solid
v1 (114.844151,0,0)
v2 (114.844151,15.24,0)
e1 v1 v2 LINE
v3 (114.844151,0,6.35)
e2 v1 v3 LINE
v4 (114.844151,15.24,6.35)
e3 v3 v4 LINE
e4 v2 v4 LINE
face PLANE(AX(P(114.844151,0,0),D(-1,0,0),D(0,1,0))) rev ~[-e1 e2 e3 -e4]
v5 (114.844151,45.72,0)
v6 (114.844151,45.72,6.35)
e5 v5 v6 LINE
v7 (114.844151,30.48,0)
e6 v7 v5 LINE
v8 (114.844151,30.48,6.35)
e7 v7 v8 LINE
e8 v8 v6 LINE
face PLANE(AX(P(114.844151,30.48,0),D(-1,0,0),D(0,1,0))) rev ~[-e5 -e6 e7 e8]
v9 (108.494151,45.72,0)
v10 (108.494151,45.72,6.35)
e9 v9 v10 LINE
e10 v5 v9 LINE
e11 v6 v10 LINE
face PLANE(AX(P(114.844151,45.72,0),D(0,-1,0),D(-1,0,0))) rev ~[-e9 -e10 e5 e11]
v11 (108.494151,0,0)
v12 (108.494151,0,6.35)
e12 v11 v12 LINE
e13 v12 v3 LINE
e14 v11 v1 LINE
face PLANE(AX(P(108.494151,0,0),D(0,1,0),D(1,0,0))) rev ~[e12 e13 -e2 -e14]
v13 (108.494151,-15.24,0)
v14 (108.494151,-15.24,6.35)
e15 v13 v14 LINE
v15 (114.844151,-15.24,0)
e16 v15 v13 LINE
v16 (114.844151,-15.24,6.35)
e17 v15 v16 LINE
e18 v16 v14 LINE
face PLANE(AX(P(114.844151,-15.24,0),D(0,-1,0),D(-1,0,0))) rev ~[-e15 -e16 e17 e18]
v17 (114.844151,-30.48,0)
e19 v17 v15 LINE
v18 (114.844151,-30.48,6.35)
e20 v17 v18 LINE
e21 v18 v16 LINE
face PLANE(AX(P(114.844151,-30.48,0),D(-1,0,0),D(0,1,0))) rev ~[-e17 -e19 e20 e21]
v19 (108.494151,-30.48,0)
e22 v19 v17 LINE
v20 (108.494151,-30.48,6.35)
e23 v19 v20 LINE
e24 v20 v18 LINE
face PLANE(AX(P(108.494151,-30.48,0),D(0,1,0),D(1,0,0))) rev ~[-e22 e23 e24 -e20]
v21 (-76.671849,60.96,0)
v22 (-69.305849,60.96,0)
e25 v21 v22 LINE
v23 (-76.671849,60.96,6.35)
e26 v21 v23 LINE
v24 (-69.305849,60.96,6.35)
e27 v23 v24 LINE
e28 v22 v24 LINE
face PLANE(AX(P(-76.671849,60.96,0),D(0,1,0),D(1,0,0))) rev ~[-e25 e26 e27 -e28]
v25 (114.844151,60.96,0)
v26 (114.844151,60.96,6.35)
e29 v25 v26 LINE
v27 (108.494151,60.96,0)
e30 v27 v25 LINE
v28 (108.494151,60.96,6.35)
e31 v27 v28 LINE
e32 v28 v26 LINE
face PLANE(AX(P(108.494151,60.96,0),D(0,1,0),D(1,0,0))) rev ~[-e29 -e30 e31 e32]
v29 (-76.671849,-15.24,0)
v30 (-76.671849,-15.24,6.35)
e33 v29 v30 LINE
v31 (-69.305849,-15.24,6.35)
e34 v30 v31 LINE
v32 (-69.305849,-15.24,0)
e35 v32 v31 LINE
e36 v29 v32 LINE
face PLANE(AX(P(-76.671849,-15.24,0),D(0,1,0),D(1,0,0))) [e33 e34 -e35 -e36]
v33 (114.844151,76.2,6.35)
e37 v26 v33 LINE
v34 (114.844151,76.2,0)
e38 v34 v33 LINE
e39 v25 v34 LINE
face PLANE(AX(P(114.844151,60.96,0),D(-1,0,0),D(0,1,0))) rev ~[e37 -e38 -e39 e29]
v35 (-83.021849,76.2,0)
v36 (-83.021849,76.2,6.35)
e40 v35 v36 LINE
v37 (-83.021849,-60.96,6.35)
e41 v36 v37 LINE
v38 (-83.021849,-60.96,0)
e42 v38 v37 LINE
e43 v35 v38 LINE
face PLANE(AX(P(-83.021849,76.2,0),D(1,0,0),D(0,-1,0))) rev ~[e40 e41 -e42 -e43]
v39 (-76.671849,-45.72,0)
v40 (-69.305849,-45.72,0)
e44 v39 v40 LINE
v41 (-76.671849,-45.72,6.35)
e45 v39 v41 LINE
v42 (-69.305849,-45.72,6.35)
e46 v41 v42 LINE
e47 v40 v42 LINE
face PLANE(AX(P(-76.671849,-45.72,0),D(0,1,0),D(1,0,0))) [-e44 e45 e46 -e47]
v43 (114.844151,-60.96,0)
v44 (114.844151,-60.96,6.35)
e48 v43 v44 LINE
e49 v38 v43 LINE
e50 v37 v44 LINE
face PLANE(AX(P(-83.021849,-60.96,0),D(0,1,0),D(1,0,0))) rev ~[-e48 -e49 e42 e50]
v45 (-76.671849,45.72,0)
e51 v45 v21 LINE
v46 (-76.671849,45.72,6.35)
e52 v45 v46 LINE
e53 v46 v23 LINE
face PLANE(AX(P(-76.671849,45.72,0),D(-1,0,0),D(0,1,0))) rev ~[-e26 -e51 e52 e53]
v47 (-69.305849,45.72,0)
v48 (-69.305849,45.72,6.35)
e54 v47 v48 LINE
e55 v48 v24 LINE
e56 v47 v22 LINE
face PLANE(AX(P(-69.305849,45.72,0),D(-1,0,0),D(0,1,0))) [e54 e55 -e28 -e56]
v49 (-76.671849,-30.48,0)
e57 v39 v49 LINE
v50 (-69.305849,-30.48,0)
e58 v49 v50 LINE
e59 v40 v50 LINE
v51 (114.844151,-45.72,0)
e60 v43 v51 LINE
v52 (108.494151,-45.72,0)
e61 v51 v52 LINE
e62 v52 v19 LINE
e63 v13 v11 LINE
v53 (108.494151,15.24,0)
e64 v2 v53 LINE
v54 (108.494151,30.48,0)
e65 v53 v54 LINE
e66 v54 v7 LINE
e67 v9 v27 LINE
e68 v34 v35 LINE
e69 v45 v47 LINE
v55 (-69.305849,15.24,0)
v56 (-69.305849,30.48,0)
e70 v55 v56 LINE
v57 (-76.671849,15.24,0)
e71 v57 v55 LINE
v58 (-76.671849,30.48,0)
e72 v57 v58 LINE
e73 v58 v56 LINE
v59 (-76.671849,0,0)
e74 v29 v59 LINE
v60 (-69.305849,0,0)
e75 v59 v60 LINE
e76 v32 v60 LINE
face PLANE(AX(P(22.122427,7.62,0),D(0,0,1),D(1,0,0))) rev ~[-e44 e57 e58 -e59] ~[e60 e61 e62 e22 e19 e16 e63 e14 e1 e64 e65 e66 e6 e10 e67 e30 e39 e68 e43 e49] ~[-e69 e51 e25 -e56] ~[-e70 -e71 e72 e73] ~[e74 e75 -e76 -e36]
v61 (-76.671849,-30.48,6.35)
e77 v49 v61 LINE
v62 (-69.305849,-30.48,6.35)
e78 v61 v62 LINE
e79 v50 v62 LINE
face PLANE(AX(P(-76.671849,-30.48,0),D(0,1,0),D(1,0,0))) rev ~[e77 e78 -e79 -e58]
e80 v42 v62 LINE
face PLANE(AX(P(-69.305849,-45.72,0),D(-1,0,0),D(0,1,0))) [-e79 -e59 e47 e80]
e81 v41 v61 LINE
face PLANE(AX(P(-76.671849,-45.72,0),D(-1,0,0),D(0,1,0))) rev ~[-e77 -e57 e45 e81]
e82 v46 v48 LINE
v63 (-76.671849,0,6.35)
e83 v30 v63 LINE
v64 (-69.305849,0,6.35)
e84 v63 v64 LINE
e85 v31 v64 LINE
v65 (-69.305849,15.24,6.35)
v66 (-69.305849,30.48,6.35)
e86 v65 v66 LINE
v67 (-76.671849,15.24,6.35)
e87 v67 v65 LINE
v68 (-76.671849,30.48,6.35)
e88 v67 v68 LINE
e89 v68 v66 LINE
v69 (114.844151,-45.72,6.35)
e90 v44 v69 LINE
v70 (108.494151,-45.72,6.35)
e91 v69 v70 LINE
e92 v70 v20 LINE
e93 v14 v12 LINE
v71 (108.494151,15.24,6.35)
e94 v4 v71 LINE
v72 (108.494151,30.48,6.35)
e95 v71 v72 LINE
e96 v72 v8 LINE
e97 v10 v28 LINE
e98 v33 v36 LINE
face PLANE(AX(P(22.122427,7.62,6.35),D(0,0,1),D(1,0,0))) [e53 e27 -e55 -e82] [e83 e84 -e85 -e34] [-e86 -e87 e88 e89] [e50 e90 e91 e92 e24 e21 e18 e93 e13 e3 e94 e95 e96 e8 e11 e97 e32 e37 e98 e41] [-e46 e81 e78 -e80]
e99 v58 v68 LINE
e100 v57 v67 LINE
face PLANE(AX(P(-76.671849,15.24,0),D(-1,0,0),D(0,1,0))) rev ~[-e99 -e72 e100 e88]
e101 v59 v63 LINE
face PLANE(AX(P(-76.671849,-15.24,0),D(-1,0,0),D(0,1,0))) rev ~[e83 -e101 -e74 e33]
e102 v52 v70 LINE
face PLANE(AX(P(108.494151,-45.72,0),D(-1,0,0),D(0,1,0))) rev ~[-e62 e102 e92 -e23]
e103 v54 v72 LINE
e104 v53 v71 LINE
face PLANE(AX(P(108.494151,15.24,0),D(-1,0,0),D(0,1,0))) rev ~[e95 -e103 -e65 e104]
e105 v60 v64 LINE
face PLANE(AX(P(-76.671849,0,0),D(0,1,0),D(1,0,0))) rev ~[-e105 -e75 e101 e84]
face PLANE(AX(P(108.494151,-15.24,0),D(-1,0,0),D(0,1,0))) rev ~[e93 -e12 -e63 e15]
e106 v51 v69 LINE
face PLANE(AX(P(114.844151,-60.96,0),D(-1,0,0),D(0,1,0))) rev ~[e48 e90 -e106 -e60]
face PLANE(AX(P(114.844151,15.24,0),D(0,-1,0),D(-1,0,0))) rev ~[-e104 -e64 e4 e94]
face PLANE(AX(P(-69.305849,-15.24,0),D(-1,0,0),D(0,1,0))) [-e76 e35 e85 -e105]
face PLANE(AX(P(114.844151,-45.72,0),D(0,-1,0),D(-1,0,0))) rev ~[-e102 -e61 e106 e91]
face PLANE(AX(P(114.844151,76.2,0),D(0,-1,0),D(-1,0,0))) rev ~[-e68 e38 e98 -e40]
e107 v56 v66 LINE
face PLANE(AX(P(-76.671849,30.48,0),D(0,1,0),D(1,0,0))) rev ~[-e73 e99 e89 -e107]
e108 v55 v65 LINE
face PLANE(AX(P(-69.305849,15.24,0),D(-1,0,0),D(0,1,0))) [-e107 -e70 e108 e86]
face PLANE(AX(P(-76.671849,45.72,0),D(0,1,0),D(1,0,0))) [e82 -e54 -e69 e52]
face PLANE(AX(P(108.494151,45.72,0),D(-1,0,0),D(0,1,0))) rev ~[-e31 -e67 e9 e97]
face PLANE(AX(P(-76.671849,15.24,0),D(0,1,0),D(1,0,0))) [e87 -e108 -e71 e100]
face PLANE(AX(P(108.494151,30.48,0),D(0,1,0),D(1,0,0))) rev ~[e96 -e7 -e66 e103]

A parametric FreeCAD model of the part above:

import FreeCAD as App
import Part
import Sketcher
from FreeCAD import Vector
Q = App.Units.Quantity


def add_polygon(sketch, points):
    """Adds a closed chain of lines whose ends are joined by coincident constraints."""
    first, n = sketch.GeometryCount, len(points)
    for a, b in zip(points, points[1:] + points[:1]):
        sketch.addGeometry(Part.LineSegment(App.Vector(*a, 0), App.Vector(*b, 0)), False)
    for i in range(n):
        sketch.addConstraint(Sketcher.Constraint("Coincident", first + i, 2, first + (i + 1) % n, 1))

doc = App.newDocument("Part")
body = doc.addObject("PartDesign::Body", "Body")

# Sketch on XY plane
sketch1 = body.newObject("Sketcher::SketchObject", "Sketch")
sketch1.AttachmentSupport = (doc.getObject("XY_Plane"), [""])
sketch1.MapMode = "FlatFace"
add_polygon(sketch1, [(-83, 76), (-83, -61), (115, -61), (115, -46), (108, -46), (108, -30), (115, -30), (115, -15), (108, -15), (108, 0), (115, 0), (115, 15), (108, 15), (108, 30), (115, 30), (115, 46), (108, 46), (108, 61), (115, 61), (115, 76)])  # lines 0-19
add_polygon(sketch1, [(-69, -46), (-77, -46), (-77, -30), (-69, -30)])  # lines 20-23
add_polygon(sketch1, [(-69, -15), (-77, -15), (-77, 0), (-69, 0)])  # lines 24-27
add_polygon(sketch1, [(-69, 15), (-77, 15), (-77, 30), (-69, 30)])  # lines 28-31
add_polygon(sketch1, [(-69, 46), (-77, 46), (-77, 61), (-69, 61)])  # lines 32-35
sketch1.addConstraint(Sketcher.Constraint("Vertical", 0))
sketch1.addConstraint(Sketcher.Constraint("Horizontal", 1))
sketch1.addConstraint(Sketcher.Constraint("Vertical", 2))
sketch1.addConstraint(Sketcher.Constraint("Horizontal", 3))
sketch1.addConstraint(Sketcher.Constraint("Vertical", 4))
sketch1.addConstraint(Sketcher.Constraint("Horizontal", 5))
sketch1.addConstraint(Sketcher.Constraint("Vertical", 6))
sketch1.addConstraint(Sketcher.Constraint("Horizontal", 7))
sketch1.addConstraint(Sketcher.Constraint("Vertical", 8))
sketch1.addConstraint(Sketcher.Constraint("Horizontal", 9))
sketch1.addConstraint(Sketcher.Constraint("Vertical", 10))
sketch1.addConstraint(Sketcher.Constraint("Horizontal", 11))
sketch1.addConstraint(Sketcher.Constraint("Vertical", 12))
sketch1.addConstraint(Sketcher.Constraint("Horizontal", 13))
sketch1.addConstraint(Sketcher.Constraint("Vertical", 14))
sketch1.addConstraint(Sketcher.Constraint("Horizontal", 15))
sketch1.addConstraint(Sketcher.Constraint("Vertical", 16))
sketch1.addConstraint(Sketcher.Constraint("Horizontal", 17))
sketch1.addConstraint(Sketcher.Constraint("Vertical", 18))
sketch1.addConstraint(Sketcher.Constraint("Horizontal", 19))
sketch1.addConstraint(Sketcher.Constraint("Horizontal", 20))
sketch1.addConstraint(Sketcher.Constraint("Vertical", 21))
sketch1.addConstraint(Sketcher.Constraint("Horizontal", 22))
sketch1.addConstraint(Sketcher.Constraint("Vertical", 23))
sketch1.addConstraint(Sketcher.Constraint("Horizontal", 24))
sketch1.addConstraint(Sketcher.Constraint("Vertical", 25))
sketch1.addConstraint(Sketcher.Constraint("Horizontal", 26))
sketch1.addConstraint(Sketcher.Constraint("Vertical", 27))
sketch1.addConstraint(Sketcher.Constraint("Horizontal", 28))
sketch1.addConstraint(Sketcher.Constraint("Vertical", 29))
sketch1.addConstraint(Sketcher.Constraint("Horizontal", 30))
sketch1.addConstraint(Sketcher.Constraint("Vertical", 31))
sketch1.addConstraint(Sketcher.Constraint("Horizontal", 32))
sketch1.addConstraint(Sketcher.Constraint("Vertical", 33))
sketch1.addConstraint(Sketcher.Constraint("Horizontal", 34))
sketch1.addConstraint(Sketcher.Constraint("Vertical", 35))
sketch1.addConstraint(Sketcher.Constraint("Symmetric", 6, 2, 10, 2, -1))
sketch1.addConstraint(Sketcher.Constraint("Symmetric", 4, 2, 12, 2, -1))
sketch1.addConstraint(Sketcher.Constraint("Symmetric", 2, 2, 14, 2, -1))
sketch1.addConstraint(Sketcher.Constraint("Symmetric", 1, 2, 17, 2, -1))
sketch1.addConstraint(Sketcher.Constraint("Symmetric", 24, 2, 28, 2, -1))
sketch1.addConstraint(Sketcher.Constraint("Symmetric", 21, 2, 29, 2, -1))
sketch1.addConstraint(Sketcher.Constraint("Symmetric", 20, 2, 32, 2, -1))
sketch1.addConstraint(Sketcher.Constraint("PointOnObject", 8, 2, -1))
sketch1.addConstraint(Sketcher.Constraint("PointOnObject", 25, 2, -1))
sketch1.addConstraint(Sketcher.Constraint("Horizontal", 3, 2, 20, 2))
sketch1.addConstraint(Sketcher.Constraint("Horizontal", 5, 2, 21, 2))
sketch1.addConstraint(Sketcher.Constraint("Horizontal", 7, 2, 24, 2))
sketch1.addConstraint(Sketcher.Constraint("Horizontal", 17, 2, 33, 2))
sketch1.addConstraint(Sketcher.Constraint("Vertical", 2, 2, 5, 2))
sketch1.addConstraint(Sketcher.Constraint("Vertical", 4, 2, 7, 2))
sketch1.addConstraint(Sketcher.Constraint("Vertical", 12, 2, 15, 2))
sketch1.addConstraint(Sketcher.Constraint("Vertical", 23, 2, 26, 2))
sketch1.addConstraint(Sketcher.Constraint("Vertical", 27, 2, 30, 2))
sketch1.addConstraint(Sketcher.Constraint("Vertical", 31, 2, 34, 2))
sketch1.addConstraint(Sketcher.Constraint("Equal", 2, 4))
sketch1.addConstraint(Sketcher.Constraint("Equal", 4, 6))
sketch1.addConstraint(Sketcher.Constraint("Equal", 6, 8))
sketch1.addConstraint(Sketcher.Constraint("Equal", 16, 18))
sketch1.addConstraint(Sketcher.Constraint("DistanceY", 0, 2, 0, 1, Q("5.4 in")))
sketch1.addConstraint(Sketcher.Constraint("DistanceX", 22, 2, 4, 2, Q("7 in")))
sketch1.addConstraint(Sketcher.Constraint("DistanceX", 1, 1, 1, 2, Q("7.79 in")))
sketch1.addConstraint(Sketcher.Constraint("DistanceX", 3, 2, 3, 1, Q("0.25 in")))
sketch1.addConstraint(Sketcher.Constraint("DistanceX", 20, 2, 20, 1, Q("0.29 in")))
sketch1.addConstraint(Sketcher.Constraint("DistanceX", 0, 2, -1, 1, Q("83.021849 mm")))
pad1 = body.newObject("PartDesign::Pad", "Pad")
pad1.Profile = sketch1
pad1.Length = Q("0.25 in")

doc.recompute()
